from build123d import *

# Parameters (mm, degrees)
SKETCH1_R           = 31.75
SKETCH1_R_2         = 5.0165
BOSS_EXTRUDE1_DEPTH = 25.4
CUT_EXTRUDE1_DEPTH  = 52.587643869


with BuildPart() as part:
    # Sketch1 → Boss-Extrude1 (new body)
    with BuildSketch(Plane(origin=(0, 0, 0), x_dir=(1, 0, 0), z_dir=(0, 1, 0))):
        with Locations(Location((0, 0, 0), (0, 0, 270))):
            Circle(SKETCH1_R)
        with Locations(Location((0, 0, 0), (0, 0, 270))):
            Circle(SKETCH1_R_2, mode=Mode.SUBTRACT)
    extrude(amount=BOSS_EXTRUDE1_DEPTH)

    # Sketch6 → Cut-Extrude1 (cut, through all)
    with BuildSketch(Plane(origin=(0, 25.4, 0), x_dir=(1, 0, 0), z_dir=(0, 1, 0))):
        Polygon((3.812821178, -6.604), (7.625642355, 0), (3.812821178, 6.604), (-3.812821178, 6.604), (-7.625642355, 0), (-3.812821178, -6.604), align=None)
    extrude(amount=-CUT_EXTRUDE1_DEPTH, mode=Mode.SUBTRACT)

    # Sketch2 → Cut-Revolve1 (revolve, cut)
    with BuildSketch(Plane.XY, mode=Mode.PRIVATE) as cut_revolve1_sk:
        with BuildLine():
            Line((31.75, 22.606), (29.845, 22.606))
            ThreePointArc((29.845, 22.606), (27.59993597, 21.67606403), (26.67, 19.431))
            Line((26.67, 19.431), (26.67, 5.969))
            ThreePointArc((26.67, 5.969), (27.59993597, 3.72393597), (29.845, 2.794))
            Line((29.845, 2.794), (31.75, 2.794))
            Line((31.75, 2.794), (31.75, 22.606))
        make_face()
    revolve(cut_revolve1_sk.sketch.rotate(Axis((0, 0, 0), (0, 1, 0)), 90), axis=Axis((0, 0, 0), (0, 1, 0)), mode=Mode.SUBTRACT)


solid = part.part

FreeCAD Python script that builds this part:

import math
import FreeCAD as App
import Part
import Sketcher

V = App.Vector
Q = App.Units.Quantity


def add_polygon(sketch, points):
    """Adds a closed chain of lines whose ends are joined by coincident constraints."""
    first, n = sketch.GeometryCount, len(points)
    for a, b in zip(points, points[1:] + points[:1]):
        sketch.addGeometry(Part.LineSegment(App.Vector(*a, 0), App.Vector(*b, 0)), False)
    for i in range(n):
        sketch.addConstraint(Sketcher.Constraint("Coincident", first + i, 2, first + (i + 1) % n, 1))

doc = App.newDocument("Part")
body = doc.addObject("PartDesign::Body", "Body")

sketch1 = body.newObject("Sketcher::SketchObject", "Sketch")
sketch1.AttachmentSupport = (doc.getObject("XZ_Plane"), [""])
sketch1.MapMode = "FlatFace"
sketch1.addGeometry(Part.Circle(V(0, 0, 0), V(0, 0, 1), 31.75), False)
sketch1.addGeometry(Part.Circle(V(0, 0, 0), V(0, 0, 1), 5.0165), False)
sketch1.addConstraint(Sketcher.Constraint("Coincident", 0, 3, -1, 1))
sketch1.addConstraint(Sketcher.Constraint("Coincident", 1, 3, -1, 1))
sketch1.addConstraint(Sketcher.Constraint("Diameter", 0, Q("2.5 in")))
sketch1.addConstraint(Sketcher.Constraint("Diameter", 1, Q("0.395 in")))
pad1 = body.newObject("PartDesign::Pad", "Pad")
pad1.Profile = sketch1
pad1.Length = Q("1 in")
pad1.Reversed = True

sketch2 = body.newObject("Sketcher::SketchObject", "Sketch001")
sketch2.AttachmentSupport = (doc.getObject("XZ_Plane"), [""])
sketch2.MapMode = "FlatFace"
sketch2.AttachmentOffset = App.Placement(V(0, 0, -1 * 25.4), App.Rotation())
add_polygon(sketch2, [(3.812821, 6.604), (7.625642, 0), (3.812821, -6.604), (-3.812821, -6.604), (-7.625642, 0), (-3.812821, 6.604)])
sketch2.addConstraint(Sketcher.Constraint("Horizontal", 2))
sketch2.addConstraint(Sketcher.Constraint("Horizontal", 5))
sketch2.addConstraint(Sketcher.Constraint("Symmetric", 0, 2, 3, 2, -1, 1))
sketch2.addConstraint(Sketcher.Constraint("Symmetric", 1, 2, 4, 2, -1, 1))
sketch2.addConstraint(Sketcher.Constraint("PointOnObject", 0, 2, -1))
sketch2.addConstraint(Sketcher.Constraint("Parallel", 0, 3))
sketch2.addConstraint(Sketcher.Constraint("Vertical", 2, 2, 4, 2))
sketch2.addConstraint(Sketcher.Constraint("Angle", 0, Q("-60 deg")))
sketch2.addConstraint(Sketcher.Constraint("DistanceY", 1, 2, -1, 1, Q("0.26 in")))
sketch2.addConstraint(Sketcher.Constraint("DistanceX", 2, 2, 2, 1, Q("7.625642 mm")))
pocket1 = body.newObject("PartDesign::Pocket", "Pocket")
pocket1.Profile = sketch2
pocket1.Type = "ThroughAll"
pocket1.Reversed = True

sketch3 = body.newObject("Sketcher::SketchObject", "Sketch002")
sketch3.AttachmentSupport = (doc.getObject("XY_Plane"), [""])
sketch3.MapMode = "FlatFace"
sketch3.addGeometry(Part.LineSegment(V(31.75, 22.606, 0), V(29.845, 22.606, 0)), False)
sketch3.addGeometry(Part.ArcOfCircle(Part.Circle(V(29.845, 19.431, 0), V(0, 0, 1), 3.175), math.radians(90), math.radians(180)), False)
sketch3.addGeometry(Part.LineSegment(V(26.67, 19.431, 0), V(26.67, 5.969, 0)), False)
sketch3.addGeometry(Part.ArcOfCircle(Part.Circle(V(29.845, 5.969, 0), V(0, 0, 1), 3.175), math.radians(-180), math.radians(-90)), False)
sketch3.addGeometry(Part.LineSegment(V(29.845, 2.794, 0), V(31.75, 2.794, 0)), False)
sketch3.addGeometry(Part.LineSegment(V(31.75, 2.794, 0), V(31.75, 22.606, 0)), False)
sketch3.addConstraint(Sketcher.Constraint("Tangent", 0, 2, 1, 1))
sketch3.addConstraint(Sketcher.Constraint("Tangent", 1, 2, 2, 1))
sketch3.addConstraint(Sketcher.Constraint("Tangent", 2, 2, 3, 1))
sketch3.addConstraint(Sketcher.Constraint("Tangent", 3, 2, 4, 1))
sketch3.addConstraint(Sketcher.Constraint("Coincident", 4, 2, 5, 1))
sketch3.addConstraint(Sketcher.Constraint("Coincident", 5, 2, 0, 1))
sketch3.addConstraint(Sketcher.Constraint("Horizontal", 0))
sketch3.addConstraint(Sketcher.Constraint("Vertical", 2))
sketch3.addConstraint(Sketcher.Constraint("Horizontal", 4))
sketch3.addConstraint(Sketcher.Constraint("Vertical", 5))
sketch3.addConstraint(Sketcher.Constraint("Equal", 1, 3))
sketch3.addConstraint(Sketcher.Constraint("Radius", 1, Q("0.125 in")))
sketch3.addConstraint(Sketcher.Constraint("DistanceY", 2, 2, 2, 1, Q("0.53 in")))
sketch3.addConstraint(Sketcher.Constraint("DistanceX", 2, 2, 4, 2, Q("0.2 in")))
sketch3.addConstraint(Sketcher.Constraint("DistanceY", -1, 1, 0, 2, Q("0.89 in")))
sketch3.addConstraint(Sketcher.Constraint("DistanceX", -1, 1, 1, 2, Q("1.05 in")))
groove = body.newObject("PartDesign::Groove", "Groove")
groove.Profile = sketch3
groove.ReferenceAxis = (sketch3, ["V_Axis"])
groove.Angle = 360

doc.recompute()
